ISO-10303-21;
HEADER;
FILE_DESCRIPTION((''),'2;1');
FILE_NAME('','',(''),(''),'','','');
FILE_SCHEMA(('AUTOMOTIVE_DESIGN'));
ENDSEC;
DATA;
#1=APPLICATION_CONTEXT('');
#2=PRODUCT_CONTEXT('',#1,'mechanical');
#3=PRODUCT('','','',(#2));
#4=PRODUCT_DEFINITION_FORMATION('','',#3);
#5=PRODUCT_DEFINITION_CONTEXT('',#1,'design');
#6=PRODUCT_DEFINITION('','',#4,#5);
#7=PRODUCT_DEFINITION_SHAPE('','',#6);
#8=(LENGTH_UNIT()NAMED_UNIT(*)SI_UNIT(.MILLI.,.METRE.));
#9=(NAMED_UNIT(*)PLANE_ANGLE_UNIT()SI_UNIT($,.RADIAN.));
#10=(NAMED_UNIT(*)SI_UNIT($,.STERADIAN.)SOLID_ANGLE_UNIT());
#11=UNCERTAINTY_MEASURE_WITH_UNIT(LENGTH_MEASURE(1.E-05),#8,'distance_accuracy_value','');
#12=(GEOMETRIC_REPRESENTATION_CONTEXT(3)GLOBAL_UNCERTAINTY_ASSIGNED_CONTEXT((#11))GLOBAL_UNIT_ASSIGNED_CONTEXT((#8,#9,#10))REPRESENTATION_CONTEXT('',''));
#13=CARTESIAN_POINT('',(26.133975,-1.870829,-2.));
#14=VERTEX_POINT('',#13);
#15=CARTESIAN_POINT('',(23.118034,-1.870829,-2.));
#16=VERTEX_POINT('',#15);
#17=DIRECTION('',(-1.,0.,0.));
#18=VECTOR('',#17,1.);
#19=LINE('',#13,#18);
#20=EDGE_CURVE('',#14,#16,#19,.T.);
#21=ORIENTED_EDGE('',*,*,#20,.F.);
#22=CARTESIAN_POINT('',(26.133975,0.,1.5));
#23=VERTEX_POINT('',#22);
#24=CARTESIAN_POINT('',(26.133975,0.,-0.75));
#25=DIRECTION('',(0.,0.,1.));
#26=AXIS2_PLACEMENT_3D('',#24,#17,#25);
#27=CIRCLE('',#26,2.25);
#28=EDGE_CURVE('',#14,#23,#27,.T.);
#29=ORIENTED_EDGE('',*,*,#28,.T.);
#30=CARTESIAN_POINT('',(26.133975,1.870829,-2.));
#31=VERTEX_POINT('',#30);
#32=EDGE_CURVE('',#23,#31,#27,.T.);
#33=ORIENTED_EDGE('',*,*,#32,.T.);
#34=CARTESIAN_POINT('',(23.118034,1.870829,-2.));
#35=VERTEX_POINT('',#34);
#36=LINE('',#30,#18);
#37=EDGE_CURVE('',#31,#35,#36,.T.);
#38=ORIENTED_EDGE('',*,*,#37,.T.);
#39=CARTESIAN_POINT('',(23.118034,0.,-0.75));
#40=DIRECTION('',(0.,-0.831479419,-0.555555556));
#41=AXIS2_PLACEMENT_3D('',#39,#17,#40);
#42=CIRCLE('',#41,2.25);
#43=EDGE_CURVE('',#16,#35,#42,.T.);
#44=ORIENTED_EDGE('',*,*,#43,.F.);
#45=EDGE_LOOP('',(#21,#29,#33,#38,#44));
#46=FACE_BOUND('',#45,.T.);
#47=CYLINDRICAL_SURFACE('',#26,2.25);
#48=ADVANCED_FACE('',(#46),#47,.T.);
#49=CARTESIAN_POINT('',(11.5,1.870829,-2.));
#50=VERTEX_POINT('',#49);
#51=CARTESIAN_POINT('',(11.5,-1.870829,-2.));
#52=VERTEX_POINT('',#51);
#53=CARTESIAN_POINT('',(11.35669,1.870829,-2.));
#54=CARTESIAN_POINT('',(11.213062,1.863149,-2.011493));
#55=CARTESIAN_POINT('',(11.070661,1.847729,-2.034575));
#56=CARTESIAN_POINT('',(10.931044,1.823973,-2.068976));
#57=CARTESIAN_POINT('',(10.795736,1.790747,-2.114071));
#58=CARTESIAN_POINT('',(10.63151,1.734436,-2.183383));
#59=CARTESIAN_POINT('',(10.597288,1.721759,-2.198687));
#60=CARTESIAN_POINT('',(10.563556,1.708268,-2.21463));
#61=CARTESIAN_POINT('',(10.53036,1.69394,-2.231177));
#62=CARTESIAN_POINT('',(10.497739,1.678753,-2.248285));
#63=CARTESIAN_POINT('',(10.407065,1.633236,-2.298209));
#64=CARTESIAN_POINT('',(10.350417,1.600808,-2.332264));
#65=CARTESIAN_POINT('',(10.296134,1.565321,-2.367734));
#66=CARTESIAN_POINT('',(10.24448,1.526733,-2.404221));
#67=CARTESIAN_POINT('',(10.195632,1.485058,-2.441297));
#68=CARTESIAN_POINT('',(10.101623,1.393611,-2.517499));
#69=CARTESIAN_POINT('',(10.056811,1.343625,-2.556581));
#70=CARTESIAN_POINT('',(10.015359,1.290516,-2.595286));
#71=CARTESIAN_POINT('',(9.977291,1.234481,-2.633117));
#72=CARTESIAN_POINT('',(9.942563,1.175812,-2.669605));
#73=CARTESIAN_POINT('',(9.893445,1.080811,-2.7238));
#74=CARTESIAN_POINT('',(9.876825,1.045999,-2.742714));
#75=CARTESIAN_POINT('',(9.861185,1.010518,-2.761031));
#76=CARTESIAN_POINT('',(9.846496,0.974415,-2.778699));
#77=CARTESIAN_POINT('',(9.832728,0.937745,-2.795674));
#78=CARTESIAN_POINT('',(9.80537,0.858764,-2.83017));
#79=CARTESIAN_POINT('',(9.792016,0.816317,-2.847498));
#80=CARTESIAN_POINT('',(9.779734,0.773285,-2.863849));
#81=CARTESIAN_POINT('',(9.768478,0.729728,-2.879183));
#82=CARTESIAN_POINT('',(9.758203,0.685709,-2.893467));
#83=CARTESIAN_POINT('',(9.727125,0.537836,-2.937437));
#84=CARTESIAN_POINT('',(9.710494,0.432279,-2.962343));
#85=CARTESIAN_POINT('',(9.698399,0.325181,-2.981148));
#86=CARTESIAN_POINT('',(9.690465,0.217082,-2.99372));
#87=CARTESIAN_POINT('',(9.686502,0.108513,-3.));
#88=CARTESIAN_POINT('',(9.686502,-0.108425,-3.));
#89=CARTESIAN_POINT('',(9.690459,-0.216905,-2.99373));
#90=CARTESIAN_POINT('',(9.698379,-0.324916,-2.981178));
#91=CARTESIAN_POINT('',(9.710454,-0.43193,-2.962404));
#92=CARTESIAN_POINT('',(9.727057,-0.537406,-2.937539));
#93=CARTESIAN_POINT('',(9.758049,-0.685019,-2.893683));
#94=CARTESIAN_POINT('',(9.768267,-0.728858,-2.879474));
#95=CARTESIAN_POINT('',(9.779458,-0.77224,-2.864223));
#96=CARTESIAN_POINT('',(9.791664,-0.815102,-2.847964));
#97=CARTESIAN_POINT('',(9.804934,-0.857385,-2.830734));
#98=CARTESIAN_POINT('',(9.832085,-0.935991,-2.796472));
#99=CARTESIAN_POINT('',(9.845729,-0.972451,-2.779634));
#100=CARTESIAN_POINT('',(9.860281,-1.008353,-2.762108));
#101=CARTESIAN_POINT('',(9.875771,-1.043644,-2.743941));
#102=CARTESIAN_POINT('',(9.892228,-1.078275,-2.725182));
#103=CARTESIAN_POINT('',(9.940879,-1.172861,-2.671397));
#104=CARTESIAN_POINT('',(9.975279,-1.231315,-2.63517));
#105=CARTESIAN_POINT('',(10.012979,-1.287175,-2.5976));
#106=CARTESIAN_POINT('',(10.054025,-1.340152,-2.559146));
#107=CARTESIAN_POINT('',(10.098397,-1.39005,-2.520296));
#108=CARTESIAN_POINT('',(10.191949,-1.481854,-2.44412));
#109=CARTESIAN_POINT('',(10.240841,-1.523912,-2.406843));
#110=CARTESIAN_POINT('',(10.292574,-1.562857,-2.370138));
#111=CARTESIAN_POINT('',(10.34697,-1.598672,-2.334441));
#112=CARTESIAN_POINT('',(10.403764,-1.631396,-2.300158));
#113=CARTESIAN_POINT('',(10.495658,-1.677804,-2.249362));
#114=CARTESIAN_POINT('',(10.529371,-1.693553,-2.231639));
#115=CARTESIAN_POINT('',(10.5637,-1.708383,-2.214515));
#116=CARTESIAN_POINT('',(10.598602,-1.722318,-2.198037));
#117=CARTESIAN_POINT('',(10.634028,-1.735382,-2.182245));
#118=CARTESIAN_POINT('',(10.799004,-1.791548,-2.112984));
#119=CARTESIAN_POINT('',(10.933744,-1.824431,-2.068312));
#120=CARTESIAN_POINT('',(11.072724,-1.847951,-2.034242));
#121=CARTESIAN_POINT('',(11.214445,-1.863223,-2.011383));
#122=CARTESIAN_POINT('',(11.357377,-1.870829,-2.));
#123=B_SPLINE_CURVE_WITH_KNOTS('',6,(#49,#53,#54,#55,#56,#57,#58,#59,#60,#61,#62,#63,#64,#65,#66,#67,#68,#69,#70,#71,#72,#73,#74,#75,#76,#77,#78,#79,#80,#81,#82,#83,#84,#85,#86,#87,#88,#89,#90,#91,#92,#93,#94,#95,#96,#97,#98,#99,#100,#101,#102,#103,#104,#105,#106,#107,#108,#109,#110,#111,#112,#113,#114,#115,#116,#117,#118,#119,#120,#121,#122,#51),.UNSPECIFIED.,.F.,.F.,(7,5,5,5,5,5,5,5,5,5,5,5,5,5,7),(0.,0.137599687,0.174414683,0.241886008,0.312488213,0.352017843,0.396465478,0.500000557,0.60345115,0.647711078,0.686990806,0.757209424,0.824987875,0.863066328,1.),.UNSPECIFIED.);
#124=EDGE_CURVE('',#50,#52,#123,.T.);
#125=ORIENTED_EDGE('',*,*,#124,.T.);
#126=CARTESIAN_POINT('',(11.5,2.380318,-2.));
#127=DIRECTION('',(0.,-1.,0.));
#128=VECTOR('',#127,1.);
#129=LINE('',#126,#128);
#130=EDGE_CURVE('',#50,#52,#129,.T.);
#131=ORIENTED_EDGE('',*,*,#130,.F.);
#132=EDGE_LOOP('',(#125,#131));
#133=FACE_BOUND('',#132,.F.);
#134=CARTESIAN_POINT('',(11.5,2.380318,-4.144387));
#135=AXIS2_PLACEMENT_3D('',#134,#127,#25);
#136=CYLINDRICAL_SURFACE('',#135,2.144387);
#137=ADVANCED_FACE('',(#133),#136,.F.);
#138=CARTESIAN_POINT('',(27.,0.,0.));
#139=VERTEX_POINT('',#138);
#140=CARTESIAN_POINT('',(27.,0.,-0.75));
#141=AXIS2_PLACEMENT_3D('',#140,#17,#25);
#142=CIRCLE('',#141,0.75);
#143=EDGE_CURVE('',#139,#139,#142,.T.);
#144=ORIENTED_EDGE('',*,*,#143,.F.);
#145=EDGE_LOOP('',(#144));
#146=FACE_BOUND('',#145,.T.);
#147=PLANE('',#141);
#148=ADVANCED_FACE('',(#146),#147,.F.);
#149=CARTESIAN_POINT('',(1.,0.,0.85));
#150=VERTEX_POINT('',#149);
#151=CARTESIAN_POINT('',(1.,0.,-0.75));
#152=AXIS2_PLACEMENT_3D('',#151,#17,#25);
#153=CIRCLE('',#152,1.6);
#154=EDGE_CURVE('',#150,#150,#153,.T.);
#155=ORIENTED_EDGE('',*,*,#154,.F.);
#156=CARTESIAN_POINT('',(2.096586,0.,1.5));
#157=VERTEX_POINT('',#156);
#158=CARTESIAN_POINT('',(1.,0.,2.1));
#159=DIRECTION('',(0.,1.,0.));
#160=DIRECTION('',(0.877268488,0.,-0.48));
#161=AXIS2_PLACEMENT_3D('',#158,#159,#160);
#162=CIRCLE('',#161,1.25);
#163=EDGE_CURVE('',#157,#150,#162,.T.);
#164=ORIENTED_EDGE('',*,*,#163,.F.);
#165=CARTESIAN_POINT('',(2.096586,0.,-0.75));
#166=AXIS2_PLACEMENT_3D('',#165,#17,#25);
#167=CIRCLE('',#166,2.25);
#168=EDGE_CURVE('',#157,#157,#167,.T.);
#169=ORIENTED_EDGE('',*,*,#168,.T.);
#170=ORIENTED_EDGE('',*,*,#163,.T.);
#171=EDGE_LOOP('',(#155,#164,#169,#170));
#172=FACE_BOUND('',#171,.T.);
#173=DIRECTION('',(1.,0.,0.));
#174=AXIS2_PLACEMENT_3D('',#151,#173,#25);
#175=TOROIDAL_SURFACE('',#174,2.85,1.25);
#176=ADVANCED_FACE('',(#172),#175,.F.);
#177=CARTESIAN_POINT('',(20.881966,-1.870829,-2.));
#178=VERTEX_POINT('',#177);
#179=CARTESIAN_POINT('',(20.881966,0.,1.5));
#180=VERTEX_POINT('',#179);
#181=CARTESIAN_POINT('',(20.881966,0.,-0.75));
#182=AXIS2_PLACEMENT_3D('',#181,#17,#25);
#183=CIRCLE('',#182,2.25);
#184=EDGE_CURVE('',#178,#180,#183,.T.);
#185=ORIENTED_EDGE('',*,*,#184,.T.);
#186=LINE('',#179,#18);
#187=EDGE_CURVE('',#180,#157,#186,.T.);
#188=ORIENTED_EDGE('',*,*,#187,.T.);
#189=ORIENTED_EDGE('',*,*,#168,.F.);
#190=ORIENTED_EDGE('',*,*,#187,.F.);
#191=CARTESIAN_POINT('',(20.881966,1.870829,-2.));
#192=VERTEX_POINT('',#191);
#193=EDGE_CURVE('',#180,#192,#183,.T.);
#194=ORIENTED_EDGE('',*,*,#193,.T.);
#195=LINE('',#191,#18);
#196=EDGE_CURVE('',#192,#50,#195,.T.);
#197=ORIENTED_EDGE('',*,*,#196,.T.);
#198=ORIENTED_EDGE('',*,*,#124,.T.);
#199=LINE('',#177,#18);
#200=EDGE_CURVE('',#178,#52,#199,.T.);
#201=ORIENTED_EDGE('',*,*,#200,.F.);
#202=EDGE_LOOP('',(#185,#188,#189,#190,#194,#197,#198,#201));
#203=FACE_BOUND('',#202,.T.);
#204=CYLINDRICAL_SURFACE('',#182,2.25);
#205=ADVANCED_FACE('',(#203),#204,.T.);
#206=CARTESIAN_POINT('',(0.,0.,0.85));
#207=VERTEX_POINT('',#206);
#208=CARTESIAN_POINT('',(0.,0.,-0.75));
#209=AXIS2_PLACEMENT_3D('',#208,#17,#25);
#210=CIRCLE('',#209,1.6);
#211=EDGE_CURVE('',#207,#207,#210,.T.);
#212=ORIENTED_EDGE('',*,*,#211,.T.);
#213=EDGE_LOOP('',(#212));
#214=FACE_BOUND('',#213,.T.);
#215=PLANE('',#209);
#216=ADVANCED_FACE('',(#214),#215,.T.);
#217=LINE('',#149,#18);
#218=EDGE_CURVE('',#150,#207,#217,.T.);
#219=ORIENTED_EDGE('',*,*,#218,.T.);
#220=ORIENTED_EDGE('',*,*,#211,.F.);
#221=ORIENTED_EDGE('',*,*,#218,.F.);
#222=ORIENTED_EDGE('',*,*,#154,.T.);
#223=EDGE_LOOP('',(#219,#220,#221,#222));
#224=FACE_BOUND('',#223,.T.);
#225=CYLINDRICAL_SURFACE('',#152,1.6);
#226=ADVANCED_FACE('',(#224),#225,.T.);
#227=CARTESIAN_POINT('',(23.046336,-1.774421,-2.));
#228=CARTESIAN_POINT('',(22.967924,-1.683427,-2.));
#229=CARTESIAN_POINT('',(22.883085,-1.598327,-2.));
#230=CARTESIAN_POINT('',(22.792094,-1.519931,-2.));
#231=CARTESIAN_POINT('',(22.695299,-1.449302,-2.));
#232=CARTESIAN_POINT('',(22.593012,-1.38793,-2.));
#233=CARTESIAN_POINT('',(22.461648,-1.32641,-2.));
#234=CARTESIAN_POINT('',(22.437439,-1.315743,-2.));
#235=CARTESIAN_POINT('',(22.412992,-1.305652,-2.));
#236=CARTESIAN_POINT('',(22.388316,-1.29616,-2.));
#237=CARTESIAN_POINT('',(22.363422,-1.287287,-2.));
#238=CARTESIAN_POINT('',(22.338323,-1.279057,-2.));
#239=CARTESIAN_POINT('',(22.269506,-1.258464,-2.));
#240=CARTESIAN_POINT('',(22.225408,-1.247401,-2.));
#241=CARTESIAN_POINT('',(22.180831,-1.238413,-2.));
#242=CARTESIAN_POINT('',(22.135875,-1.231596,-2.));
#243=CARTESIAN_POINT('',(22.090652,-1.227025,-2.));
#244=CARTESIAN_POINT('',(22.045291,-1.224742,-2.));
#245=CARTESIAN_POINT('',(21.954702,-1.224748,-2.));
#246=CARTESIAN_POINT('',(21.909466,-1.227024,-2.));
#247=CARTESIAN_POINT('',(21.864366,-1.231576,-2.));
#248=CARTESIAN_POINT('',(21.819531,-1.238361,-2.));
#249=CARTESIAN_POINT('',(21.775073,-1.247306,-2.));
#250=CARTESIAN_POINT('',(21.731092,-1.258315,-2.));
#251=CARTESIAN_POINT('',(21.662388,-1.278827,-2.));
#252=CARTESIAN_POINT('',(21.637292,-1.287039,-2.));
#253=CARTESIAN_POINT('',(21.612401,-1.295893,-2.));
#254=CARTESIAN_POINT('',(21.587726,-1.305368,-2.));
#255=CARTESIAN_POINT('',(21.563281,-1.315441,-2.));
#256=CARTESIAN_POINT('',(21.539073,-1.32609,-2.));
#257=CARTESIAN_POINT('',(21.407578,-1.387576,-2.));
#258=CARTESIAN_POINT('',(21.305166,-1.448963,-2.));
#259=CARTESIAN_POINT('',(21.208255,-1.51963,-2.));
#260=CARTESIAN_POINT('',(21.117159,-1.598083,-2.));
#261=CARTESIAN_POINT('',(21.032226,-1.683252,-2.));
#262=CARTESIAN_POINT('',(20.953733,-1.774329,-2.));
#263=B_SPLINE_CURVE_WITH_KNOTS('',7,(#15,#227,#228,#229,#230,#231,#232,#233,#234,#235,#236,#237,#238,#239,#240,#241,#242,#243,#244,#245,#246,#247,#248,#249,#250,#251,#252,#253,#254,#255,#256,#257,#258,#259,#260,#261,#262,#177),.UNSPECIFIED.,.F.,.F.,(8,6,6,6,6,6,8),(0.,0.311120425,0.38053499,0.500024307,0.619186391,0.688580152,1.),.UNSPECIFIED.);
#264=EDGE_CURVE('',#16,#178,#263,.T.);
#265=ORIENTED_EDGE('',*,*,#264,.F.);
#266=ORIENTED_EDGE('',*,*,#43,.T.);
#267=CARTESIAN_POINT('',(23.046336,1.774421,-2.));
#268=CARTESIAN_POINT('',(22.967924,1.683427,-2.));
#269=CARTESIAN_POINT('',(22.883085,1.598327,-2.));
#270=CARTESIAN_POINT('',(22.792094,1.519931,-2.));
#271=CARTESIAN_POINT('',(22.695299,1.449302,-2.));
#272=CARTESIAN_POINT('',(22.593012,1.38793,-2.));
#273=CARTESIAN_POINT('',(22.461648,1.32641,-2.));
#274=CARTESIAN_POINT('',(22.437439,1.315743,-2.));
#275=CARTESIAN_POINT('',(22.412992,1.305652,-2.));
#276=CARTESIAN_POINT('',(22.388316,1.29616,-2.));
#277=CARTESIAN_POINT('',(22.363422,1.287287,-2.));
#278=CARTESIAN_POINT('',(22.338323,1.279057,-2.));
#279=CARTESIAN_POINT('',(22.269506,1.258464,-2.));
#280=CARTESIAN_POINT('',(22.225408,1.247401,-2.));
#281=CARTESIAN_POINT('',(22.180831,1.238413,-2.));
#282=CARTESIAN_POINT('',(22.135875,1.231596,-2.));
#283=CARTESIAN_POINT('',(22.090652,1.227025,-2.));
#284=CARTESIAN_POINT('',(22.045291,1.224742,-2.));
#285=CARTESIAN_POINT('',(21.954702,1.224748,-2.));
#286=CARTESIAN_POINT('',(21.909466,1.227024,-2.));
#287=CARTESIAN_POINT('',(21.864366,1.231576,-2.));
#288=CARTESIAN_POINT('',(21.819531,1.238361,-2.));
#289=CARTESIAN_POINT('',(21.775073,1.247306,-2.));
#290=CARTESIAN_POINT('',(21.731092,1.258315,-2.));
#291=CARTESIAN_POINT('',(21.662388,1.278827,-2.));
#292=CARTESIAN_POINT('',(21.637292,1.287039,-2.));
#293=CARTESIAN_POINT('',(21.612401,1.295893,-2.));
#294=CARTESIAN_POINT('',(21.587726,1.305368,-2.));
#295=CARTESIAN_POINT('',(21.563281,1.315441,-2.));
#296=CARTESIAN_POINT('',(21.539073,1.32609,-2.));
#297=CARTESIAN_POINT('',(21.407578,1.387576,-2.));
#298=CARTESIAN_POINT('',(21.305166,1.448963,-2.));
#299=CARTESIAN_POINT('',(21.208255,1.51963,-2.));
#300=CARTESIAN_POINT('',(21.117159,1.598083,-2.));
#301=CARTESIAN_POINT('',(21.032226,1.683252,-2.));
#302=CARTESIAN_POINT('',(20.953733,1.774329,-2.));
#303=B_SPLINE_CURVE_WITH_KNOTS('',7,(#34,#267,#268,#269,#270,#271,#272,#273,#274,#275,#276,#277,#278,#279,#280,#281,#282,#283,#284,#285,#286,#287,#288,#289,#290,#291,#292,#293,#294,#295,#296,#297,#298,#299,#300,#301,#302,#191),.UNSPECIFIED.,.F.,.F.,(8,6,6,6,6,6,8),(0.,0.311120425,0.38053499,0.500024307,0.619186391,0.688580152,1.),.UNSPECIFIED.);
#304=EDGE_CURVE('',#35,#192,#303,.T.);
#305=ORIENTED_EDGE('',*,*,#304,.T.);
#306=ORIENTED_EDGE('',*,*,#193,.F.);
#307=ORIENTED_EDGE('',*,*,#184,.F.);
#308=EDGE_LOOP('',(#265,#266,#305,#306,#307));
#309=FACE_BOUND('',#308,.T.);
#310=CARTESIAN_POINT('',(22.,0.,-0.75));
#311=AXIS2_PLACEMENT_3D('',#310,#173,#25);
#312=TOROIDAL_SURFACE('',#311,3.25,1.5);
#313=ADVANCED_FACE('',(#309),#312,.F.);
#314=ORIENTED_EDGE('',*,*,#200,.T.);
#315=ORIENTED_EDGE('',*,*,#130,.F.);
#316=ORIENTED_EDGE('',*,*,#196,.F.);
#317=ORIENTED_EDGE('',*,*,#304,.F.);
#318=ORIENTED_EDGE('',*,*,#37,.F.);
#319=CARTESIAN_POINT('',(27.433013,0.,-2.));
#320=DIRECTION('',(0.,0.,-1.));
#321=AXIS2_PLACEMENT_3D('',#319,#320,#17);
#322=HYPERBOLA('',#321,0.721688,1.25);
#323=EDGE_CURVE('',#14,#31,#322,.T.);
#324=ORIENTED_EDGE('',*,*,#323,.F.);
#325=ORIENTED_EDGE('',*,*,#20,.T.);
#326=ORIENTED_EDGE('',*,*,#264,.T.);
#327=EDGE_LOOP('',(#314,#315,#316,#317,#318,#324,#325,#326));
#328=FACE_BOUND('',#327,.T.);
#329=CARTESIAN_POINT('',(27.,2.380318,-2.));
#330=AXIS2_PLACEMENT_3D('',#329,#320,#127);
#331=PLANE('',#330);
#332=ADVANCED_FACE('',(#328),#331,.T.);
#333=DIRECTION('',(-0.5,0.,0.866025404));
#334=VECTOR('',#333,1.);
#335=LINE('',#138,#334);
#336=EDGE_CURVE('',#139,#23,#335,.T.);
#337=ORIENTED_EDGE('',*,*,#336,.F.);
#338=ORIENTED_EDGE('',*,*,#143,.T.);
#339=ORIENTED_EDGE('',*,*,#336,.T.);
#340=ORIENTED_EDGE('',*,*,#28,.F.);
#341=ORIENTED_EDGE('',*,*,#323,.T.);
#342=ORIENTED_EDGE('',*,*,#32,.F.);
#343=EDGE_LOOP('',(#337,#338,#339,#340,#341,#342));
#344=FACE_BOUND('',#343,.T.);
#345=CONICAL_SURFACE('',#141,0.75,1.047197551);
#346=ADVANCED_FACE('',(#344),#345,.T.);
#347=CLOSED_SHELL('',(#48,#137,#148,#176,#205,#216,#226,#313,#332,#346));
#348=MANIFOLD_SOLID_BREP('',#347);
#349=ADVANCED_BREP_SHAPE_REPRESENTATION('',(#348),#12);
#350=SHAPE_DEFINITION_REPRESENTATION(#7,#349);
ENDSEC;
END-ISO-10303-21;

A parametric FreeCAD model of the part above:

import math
import FreeCAD as App
import Part
import Sketcher
from FreeCAD import Vector
Q = App.Units.Quantity

doc = App.newDocument("Part")
body = doc.addObject("PartDesign::Body", "Body")

# Sketch on XZ plane
sketch1 = doc.addObject("Sketcher::SketchObject", "Sketch")
body.addObject(sketch1)
sketch1.AttachmentSupport = (doc.XZ_Plane, [""])
sketch1.MapMode = "FlatFace"
sketch1.addGeometry([
    Part.LineSegment(Vector(1, 0.85, 0), Vector(0, 0.85, 0)),  # 0
    Part.LineSegment(Vector(0, 0.85, 0), Vector(0, -0.75, 0)),  # 1
    Part.LineSegment(Vector(0, -0.75, 0), Vector(27, -0.75, 0)),  # 2
    Part.LineSegment(Vector(27, -0.75, 0), Vector(27, 0, 0)),  # 3
    Part.LineSegment(Vector(27, 0, 0), Vector(26.133975, 1.5, 0)),  # 4
    Part.LineSegment(Vector(26.133975, 1.5, 0), Vector(23.118034, 1.5, 0)),  # 5
    Part.ArcOfCircle(Part.Circle(Vector(22, 2.5, 0), Vector(0, 0, 1), 1.5), math.radians(-138.189685), math.radians(-41.810315)),  # 6
    Part.LineSegment(Vector(20.881966, 1.5, 0), Vector(2.096586, 1.5, 0)),  # 7
    Part.ArcOfCircle(Part.Circle(Vector(1, 2.1, 0), Vector(0, 0, 1), 1.25), math.radians(-90), math.radians(-28.685402)),  # 8
], False)
sketch1.addGeometry(Part.LineSegment(Vector(27, -0.75, 0), Vector(0, -0.75, 0)), True)  # axis
sketch1.addConstraint([
    Sketcher.Constraint("Coincident", 0, 2, 1, 1),
    Sketcher.Constraint("Coincident", 1, 2, 2, 1),
    Sketcher.Constraint("Coincident", 2, 2, 3, 1),
    Sketcher.Constraint("Coincident", 3, 2, 4, 1),
    Sketcher.Constraint("Coincident", 4, 2, 5, 1),
    Sketcher.Constraint("Coincident", 5, 2, 6, 2),
    Sketcher.Constraint("Coincident", 6, 1, 7, 1),
    Sketcher.Constraint("Coincident", 7, 2, 8, 2),
    Sketcher.Constraint("Tangent", 8, 1, 0, 1),
    Sketcher.Constraint("Horizontal", 0),
    Sketcher.Constraint("Vertical", 1),
    Sketcher.Constraint("Horizontal", 2),
    Sketcher.Constraint("Vertical", 3),
    Sketcher.Constraint("Horizontal", 5),
    Sketcher.Constraint("Horizontal", 7),
    Sketcher.Constraint("Horizontal", 9),
    Sketcher.Constraint("Coincident", 9, 1, 2, 2),
    Sketcher.Constraint("PointOnObject", 0, 2, -2),
    Sketcher.Constraint("PointOnObject", 3, 2, -1),
    Sketcher.Constraint("PointOnObject", 9, 2, -2),
    Sketcher.Constraint("Horizontal", 5, 2, 6, 1),
    Sketcher.Constraint("Radius", 6, 1.5),
    Sketcher.Constraint("DistanceX", 0, 2, 0, 1, 1.0),
    Sketcher.Constraint("DistanceX", 2, 1, 2, 2, 27.0),
    Sketcher.Constraint("Angle", 4, Q("120 deg")),
    Sketcher.Constraint("Radius", 8, 1.25),
    Sketcher.Constraint("DistanceY", 1, 2, 1, 1, 1.6),
    Sketcher.Constraint("DistanceX", -1, 1, 6, 3, 22.0),
    Sketcher.Constraint("DistanceY", 4, 2, 6, 3, 1.0),
    Sketcher.Constraint("DistanceY", 3, 1, 3, 2, 0.75),
    Sketcher.Constraint("DistanceY", -1, 1, 6, 3, 2.5),
])
revolution = doc.addObject("PartDesign::Revolution", "Revolution")
body.addObject(revolution)
revolution.Profile = sketch1
revolution.ReferenceAxis = (sketch1, ["Axis0"])
revolution.Angle = 360

# Sketch on YZ plane
sketch2 = doc.addObject("Sketcher::SketchObject", "Sketch001")
body.addObject(sketch2)
sketch2.AttachmentSupport = (doc.YZ_Plane, [""])
sketch2.MapMode = "FlatFace"
sketch2.AttachmentOffset = App.Placement(Vector(0, 0, 27), App.Rotation())
sketch2.addGeometry([
    Part.LineSegment(Vector(2.380318, -2, 0), Vector(-2.619682, -2, 0)),
    Part.LineSegment(Vector(-2.619682, -2, 0), Vector(-2.619682, -3, 0)),
    Part.LineSegment(Vector(-2.619682, -3, 0), Vector(2.380318, -3, 0)),
    Part.LineSegment(Vector(2.380318, -3, 0), Vector(2.380318, -2, 0)),
], False)
sketch2.addConstraint([
    Sketcher.Constraint("Coincident", 0, 2, 1, 1),
    Sketcher.Constraint("Coincident", 1, 2, 2, 1),
    Sketcher.Constraint("Coincident", 2, 2, 3, 1),
    Sketcher.Constraint("Coincident", 3, 2, 0, 1),
    Sketcher.Constraint("Horizontal", 0),
    Sketcher.Constraint("Vertical", 1),
    Sketcher.Constraint("Horizontal", 2),
    Sketcher.Constraint("Vertical", 3),
    Sketcher.Constraint("DistanceX", 0, 2, 0, 1, 5.0),
    Sketcher.Constraint("DistanceY", 1, 2, 1, 1, 1.0),
    Sketcher.Constraint("DistanceY", 0, 2, -1, 1, 2.0),
    Sketcher.Constraint("DistanceX", 0, 2, -1, 1, 2.619682),
])

# Sketch on XZ plane
sketch3 = doc.addObject("Sketcher::SketchObject", "Sketch002")
body.addObject(sketch3)
sketch3.AttachmentSupport = (doc.XZ_Plane, [""])
sketch3.MapMode = "FlatFace"
sketch3.addGeometry([
    Part.LineSegment(Vector(27, -2, 0), Vector(11.5, -2, 0)),
    Part.ArcOfCircle(Part.Circle(Vector(11.5, -4.144387, 0), Vector(0, 0, 1), 2.144387), math.radians(90), math.radians(149.623086)),
], False)
sketch3.addConstraint([
    Sketcher.Constraint("Tangent", 0, 2, 1, 1),
    Sketcher.Constraint("Horizontal", 0),
    Sketcher.Constraint("DistanceX", 0, 2, 0, 1, 15.5),
    Sketcher.Constraint("DistanceX", -1, 1, 0, 1, 27.0),
    Sketcher.Constraint("DistanceY", 0, 1, -1, 1, 2.0),
    Sketcher.Constraint("DistanceX", -1, 1, 1, 2, 9.65),
    Sketcher.Constraint("DistanceY", 1, 2, -1, 1, 3.06),
])
doc.recompute()

subtractivepipe = doc.addObject("PartDesign::SubtractivePipe", "SubtractivePipe")
body.addObject(subtractivepipe)
subtractivepipe.Profile = sketch2
subtractivepipe.Spine = (sketch3, ["Edge1", "Edge2"])

doc.recompute()
